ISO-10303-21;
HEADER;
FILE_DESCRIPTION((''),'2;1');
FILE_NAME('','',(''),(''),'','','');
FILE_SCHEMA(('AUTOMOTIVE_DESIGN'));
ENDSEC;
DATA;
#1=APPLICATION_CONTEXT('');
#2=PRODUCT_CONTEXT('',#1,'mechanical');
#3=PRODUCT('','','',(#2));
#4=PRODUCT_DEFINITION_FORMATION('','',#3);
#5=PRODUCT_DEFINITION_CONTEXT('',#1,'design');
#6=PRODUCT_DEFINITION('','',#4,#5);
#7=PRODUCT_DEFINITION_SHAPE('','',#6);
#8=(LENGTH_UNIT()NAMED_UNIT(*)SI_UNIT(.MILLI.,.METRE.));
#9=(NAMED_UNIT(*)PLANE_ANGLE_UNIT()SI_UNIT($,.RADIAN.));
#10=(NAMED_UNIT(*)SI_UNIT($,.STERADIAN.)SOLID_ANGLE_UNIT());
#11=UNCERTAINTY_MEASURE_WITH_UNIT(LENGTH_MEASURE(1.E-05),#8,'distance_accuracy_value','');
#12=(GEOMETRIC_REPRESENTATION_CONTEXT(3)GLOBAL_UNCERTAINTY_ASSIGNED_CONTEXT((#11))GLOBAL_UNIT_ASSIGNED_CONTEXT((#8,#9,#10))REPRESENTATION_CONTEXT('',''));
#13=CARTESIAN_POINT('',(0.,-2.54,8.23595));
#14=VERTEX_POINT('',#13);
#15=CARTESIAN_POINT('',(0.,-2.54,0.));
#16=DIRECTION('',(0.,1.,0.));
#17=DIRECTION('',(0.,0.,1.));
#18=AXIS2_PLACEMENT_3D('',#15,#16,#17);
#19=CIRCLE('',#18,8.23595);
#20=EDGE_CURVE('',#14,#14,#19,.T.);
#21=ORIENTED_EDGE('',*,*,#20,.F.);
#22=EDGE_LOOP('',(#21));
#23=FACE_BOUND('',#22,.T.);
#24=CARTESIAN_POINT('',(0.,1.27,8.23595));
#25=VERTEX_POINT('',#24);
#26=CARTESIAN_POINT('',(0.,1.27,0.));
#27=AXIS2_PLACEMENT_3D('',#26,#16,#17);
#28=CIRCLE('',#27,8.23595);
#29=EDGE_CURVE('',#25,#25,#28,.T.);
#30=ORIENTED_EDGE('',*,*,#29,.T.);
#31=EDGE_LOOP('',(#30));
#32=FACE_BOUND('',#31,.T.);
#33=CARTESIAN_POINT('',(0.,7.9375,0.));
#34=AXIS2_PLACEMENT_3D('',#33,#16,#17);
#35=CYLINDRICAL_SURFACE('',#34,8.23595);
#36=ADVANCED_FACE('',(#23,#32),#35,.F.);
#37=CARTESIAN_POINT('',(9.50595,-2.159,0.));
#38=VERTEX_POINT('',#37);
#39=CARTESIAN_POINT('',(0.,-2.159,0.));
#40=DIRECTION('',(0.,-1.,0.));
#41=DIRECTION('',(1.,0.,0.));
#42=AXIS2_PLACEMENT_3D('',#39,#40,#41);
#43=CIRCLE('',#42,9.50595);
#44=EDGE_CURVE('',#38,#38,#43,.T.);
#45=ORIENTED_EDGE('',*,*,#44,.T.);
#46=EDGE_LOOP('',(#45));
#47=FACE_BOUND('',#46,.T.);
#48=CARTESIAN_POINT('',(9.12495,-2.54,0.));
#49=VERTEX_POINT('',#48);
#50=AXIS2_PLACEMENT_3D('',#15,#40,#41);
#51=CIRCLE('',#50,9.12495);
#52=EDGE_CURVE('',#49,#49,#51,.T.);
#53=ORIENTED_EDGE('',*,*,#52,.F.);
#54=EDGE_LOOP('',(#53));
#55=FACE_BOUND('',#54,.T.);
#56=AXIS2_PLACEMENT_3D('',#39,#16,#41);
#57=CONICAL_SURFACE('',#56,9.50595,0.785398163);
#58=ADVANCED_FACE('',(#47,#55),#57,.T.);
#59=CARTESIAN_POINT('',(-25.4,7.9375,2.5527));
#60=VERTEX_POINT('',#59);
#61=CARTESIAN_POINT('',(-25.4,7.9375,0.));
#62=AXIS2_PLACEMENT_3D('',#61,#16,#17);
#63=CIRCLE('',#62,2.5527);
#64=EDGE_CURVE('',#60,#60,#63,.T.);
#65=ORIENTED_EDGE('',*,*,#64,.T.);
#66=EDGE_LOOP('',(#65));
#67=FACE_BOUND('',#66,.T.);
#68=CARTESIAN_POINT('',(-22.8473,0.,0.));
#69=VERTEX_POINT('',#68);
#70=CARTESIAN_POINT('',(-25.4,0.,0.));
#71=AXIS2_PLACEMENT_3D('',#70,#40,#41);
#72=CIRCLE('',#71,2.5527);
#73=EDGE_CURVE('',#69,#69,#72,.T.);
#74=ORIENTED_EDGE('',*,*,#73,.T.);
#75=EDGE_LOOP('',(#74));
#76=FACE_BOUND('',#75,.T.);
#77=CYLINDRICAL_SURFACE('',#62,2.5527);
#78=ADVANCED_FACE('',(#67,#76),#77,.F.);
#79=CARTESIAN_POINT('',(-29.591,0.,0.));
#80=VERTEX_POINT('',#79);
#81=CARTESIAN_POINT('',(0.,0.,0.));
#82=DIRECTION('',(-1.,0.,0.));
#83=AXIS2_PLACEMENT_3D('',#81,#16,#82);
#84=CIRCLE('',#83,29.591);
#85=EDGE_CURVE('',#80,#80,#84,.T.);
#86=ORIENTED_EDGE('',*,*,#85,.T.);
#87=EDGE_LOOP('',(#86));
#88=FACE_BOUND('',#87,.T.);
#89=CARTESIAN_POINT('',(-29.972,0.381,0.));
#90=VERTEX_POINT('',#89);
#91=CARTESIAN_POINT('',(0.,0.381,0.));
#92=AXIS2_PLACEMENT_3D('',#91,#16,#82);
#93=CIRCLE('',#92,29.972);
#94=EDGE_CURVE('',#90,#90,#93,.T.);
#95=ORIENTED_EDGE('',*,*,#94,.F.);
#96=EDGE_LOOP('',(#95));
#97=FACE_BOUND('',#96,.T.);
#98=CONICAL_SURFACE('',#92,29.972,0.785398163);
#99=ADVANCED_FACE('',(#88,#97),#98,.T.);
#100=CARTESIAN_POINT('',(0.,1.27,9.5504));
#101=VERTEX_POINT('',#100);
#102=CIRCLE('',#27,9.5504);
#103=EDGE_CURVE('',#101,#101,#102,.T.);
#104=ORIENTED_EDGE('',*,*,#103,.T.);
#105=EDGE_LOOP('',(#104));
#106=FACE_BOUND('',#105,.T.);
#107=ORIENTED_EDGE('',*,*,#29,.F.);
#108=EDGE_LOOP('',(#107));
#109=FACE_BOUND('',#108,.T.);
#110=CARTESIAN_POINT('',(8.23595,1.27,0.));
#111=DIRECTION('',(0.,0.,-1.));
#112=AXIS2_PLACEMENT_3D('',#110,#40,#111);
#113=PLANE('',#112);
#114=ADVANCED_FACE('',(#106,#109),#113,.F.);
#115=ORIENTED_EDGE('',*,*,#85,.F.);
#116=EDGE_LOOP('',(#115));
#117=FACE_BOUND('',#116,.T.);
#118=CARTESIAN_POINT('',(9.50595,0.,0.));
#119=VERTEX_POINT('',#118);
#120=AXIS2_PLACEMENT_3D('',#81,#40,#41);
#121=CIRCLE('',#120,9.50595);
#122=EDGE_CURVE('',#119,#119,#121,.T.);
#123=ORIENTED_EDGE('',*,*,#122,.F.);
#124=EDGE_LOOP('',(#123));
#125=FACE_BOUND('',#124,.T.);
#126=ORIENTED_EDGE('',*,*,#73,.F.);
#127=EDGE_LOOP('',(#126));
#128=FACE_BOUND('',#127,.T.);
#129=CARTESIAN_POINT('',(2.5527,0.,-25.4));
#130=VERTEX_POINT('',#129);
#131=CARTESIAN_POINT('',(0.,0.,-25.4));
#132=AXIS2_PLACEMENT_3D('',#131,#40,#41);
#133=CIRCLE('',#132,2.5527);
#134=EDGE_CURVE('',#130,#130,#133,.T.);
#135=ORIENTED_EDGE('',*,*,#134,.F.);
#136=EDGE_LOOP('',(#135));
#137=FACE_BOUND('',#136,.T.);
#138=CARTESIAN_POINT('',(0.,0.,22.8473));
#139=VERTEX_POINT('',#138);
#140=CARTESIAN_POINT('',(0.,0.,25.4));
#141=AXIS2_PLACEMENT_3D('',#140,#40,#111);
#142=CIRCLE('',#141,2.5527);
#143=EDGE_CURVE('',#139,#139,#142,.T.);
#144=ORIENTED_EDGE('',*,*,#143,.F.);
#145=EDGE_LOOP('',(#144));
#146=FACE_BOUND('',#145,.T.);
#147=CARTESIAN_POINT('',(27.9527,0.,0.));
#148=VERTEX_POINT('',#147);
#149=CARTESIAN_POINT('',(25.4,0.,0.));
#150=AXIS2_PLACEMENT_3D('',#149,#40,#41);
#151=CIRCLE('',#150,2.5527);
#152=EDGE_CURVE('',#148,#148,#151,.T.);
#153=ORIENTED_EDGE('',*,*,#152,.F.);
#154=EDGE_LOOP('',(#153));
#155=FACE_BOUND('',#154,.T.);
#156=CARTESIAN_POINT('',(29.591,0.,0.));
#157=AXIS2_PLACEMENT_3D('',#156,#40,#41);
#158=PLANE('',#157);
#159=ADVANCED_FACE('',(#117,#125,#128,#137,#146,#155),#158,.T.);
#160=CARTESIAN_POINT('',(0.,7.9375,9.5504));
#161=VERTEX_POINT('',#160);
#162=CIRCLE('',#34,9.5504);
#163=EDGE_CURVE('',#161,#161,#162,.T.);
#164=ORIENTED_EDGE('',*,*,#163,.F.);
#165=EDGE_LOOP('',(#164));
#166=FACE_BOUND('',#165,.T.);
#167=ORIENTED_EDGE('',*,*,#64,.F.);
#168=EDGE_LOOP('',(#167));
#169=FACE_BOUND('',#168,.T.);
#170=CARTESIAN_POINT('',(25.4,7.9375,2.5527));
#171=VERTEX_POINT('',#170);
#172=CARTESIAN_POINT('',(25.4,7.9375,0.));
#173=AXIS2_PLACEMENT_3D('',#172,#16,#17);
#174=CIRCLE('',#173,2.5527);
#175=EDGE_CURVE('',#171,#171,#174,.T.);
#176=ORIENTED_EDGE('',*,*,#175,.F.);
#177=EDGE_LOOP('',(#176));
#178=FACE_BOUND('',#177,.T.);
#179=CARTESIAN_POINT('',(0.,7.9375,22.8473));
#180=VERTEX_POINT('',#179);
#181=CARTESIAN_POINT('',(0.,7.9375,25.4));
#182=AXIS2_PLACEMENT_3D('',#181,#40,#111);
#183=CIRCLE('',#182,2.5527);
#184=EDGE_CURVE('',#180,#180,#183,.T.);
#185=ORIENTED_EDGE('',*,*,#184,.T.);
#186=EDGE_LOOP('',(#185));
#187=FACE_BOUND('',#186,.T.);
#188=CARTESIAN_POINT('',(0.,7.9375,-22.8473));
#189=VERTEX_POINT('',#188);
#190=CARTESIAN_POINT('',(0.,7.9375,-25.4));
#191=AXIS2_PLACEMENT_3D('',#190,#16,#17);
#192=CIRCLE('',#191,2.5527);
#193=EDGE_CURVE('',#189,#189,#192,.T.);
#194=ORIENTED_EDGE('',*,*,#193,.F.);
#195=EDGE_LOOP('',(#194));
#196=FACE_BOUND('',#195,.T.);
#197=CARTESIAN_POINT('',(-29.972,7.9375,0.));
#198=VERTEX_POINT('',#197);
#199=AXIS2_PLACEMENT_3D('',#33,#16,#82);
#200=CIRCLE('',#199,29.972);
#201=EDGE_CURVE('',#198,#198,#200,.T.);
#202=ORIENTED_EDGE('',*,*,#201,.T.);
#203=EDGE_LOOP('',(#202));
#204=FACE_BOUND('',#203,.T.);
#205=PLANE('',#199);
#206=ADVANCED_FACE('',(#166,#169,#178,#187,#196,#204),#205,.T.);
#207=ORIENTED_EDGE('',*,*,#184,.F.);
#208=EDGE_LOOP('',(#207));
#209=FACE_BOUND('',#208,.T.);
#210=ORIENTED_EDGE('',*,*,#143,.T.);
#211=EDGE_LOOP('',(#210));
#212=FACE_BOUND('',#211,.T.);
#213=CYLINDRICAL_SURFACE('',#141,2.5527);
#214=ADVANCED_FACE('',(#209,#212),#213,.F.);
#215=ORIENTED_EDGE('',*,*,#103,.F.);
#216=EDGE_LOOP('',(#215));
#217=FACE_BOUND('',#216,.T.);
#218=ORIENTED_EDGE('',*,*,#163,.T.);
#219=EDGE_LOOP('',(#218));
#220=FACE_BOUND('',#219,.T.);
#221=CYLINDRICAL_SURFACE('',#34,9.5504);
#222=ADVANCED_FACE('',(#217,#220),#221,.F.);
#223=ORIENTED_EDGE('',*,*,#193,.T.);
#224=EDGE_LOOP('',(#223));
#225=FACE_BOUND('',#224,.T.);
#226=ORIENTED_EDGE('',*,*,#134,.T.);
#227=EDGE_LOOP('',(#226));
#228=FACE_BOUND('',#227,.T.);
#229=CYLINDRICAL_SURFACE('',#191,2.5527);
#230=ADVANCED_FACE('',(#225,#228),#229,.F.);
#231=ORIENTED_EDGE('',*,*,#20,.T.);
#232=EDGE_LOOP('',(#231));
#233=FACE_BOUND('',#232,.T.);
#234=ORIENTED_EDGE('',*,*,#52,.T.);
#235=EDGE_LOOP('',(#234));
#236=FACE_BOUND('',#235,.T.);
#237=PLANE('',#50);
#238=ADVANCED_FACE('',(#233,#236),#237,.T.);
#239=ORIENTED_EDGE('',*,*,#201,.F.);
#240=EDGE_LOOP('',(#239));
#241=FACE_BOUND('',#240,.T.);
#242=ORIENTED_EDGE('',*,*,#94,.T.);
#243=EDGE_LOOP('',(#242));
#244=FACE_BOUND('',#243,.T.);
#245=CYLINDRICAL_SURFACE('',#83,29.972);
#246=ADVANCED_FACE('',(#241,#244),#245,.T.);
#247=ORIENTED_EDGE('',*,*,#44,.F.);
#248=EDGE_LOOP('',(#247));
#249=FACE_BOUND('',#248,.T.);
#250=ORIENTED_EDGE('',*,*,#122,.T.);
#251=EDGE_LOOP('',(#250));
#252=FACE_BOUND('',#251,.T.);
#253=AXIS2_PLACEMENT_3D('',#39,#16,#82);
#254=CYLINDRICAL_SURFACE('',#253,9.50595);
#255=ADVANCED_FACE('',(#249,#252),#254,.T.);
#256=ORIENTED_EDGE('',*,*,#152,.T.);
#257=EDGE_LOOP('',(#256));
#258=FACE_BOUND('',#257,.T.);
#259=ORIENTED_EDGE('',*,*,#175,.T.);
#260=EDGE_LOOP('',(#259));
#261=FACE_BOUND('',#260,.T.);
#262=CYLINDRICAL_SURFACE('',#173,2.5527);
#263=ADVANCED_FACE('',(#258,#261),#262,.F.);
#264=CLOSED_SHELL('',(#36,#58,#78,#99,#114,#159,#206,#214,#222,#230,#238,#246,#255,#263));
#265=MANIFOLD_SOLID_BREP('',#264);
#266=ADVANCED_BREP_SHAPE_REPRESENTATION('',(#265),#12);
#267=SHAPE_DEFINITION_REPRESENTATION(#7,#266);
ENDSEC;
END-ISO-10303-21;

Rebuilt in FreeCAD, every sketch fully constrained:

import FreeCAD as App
import Part
import Sketcher

V = App.Vector
Q = App.Units.Quantity

doc = App.newDocument("Part")
body = doc.addObject("PartDesign::Body", "Body")

# Sketch on XY plane
sketch1 = body.newObject("Sketcher::SketchObject", "Sketch")
sketch1.AttachmentSupport = (doc.getObject("XY_Plane"), [""])
sketch1.MapMode = "FlatFace"
sketch1.addGeometry(Part.LineSegment(V(29.6, 0, 0), V(0, 0, 0)), False)
sketch1.addGeometry(Part.LineSegment(V(0, 0, 0), V(0, 7.9, 0)), False)
sketch1.addGeometry(Part.LineSegment(V(0, 7.9, 0), V(30, 7.9, 0)), False)
sketch1.addGeometry(Part.LineSegment(V(30, 7.9, 0), V(30, 0.4, 0)), False)
sketch1.addGeometry(Part.LineSegment(V(30, 0.4, 0), V(29.6, 0, 0)), False)
sketch1.addConstraint(Sketcher.Constraint("Coincident", 0, 2, 1, 1))
sketch1.addConstraint(Sketcher.Constraint("Coincident", 1, 2, 2, 1))
sketch1.addConstraint(Sketcher.Constraint("Coincident", 2, 2, 3, 1))
sketch1.addConstraint(Sketcher.Constraint("Coincident", 3, 2, 4, 1))
sketch1.addConstraint(Sketcher.Constraint("Coincident", 4, 2, 0, 1))
sketch1.addConstraint(Sketcher.Constraint("Horizontal", 0))
sketch1.addConstraint(Sketcher.Constraint("Vertical", 1))
sketch1.addConstraint(Sketcher.Constraint("Horizontal", 2))
sketch1.addConstraint(Sketcher.Constraint("Vertical", 3))
sketch1.addConstraint(Sketcher.Constraint("Coincident", 0, 2, -1, 1))
sketch1.addConstraint(Sketcher.Constraint("Angle", 4, Q("-135 deg")))
sketch1.addConstraint(Sketcher.Constraint("DistanceX", 2, 1, 2, 2, Q("1.18 in")))
sketch1.addConstraint(Sketcher.Constraint("DistanceX", 0, 2, 0, 1, Q("1.165 in")))
sketch1.addConstraint(Sketcher.Constraint("DistanceY", 1, 1, 1, 2, Q("0.3125 in")))
revolution = body.newObject("PartDesign::Revolution", "Revolution")
revolution.Profile = sketch1
revolution.ReferenceAxis = (sketch1, ["V_Axis"])
revolution.Angle = 360

# Sketch on XZ plane
sketch2 = body.newObject("Sketcher::SketchObject", "Sketch001")
sketch2.AttachmentSupport = (doc.getObject("XZ_Plane"), [""])
sketch2.MapMode = "FlatFace"
sketch2.addGeometry(Part.Circle(V(0, 0, 0), V(0, 0, 1), 10), False)
sketch2.addConstraint(Sketcher.Constraint("Coincident", 0, 3, -1, 1))
sketch2.addConstraint(Sketcher.Constraint("Diameter", 0, Q("0.7485 in")))
pad1 = body.newObject("PartDesign::Pad", "Pad")
pad1.Profile = sketch2
pad1.Length = Q("0.085 in")

# Sketch on XZ plane
sketch3 = body.newObject("Sketcher::SketchObject", "Sketch002")
sketch3.AttachmentSupport = (doc.getObject("XZ_Plane"), [""])
sketch3.MapMode = "FlatFace"
sketch3.AttachmentOffset = App.Placement(V(0, 0, 0.085 * 25.4), App.Rotation())
sketch3.addGeometry(Part.Circle(V(0, 0, 0), V(0, 0, 1), 10), False)
sketch3.addConstraint(Sketcher.Constraint("Coincident", 0, 3, -1, 1))
sketch3.addConstraint(Sketcher.Constraint("Diameter", 0, Q("0.7485 in")))
pad2 = body.newObject("PartDesign::Pad", "Pad001")
pad2.Profile = sketch3
pad2.Length = Q("0.015 in")
pad2.TaperAngle = -45

# Sketch on XZ plane
sketch4 = body.newObject("Sketcher::SketchObject", "Sketch003")
sketch4.AttachmentSupport = (doc.getObject("XZ_Plane"), [""])
sketch4.MapMode = "FlatFace"
sketch4.addGeometry(Part.Circle(V(0, 25.4, 0), V(0, 0, 1), 2.6), False)
sketch4.addConstraint(Sketcher.Constraint("PointOnObject", 0, 3, -2))
sketch4.addConstraint(Sketcher.Constraint("Diameter", 0, Q("0.201 in")))
sketch4.addConstraint(Sketcher.Constraint("DistanceY", -1, 1, 0, 3, Q("1 in")))
doc.recompute()
hole = body.newObject("PartDesign::Hole", "Hole")
hole.Profile = sketch4
hole.ThreadType = "None"
hole.Diameter = Q("0.201 in")
hole.DepthType = "Dimension"
hole.Depth = Q("0.3125 in")
hole.DrillPoint = "Flat"

# Sketch on XZ plane
sketch5 = body.newObject("Sketcher::SketchObject", "Sketch004")
sketch5.AttachmentSupport = (doc.getObject("XZ_Plane"), [""])
sketch5.MapMode = "FlatFace"
sketch5.AttachmentOffset = App.Placement(V(0, 0, -0.3125 * 25.4), App.Rotation())
sketch5.addGeometry(Part.Circle(V(0, -25.4, 0), V(0, 0, 1), 2.6), False)
sketch5.addGeometry(Part.Circle(V(25.4, 0, 0), V(0, 0, 1), 2.6), False)
sketch5.addGeometry(Part.Circle(V(-25.4, 0, 0), V(0, 0, 1), 2.6), False)
sketch5.addConstraint(Sketcher.Constraint("Equal", 0, 1))
sketch5.addConstraint(Sketcher.Constraint("Equal", 1, 2))
sketch5.addConstraint(Sketcher.Constraint("Symmetric", 1, 3, 2, 3, -1, 1))
sketch5.addConstraint(Sketcher.Constraint("PointOnObject", 0, 3, -2))
sketch5.addConstraint(Sketcher.Constraint("PointOnObject", 1, 3, -1))
sketch5.addConstraint(Sketcher.Constraint("Diameter", 0, Q("0.201 in")))
sketch5.addConstraint(Sketcher.Constraint("DistanceY", 0, 3, -1, 1, Q("1 in")))
sketch5.addConstraint(Sketcher.Constraint("DistanceX", -1, 1, 1, 3, Q("1 in")))
doc.recompute()
hole2 = body.newObject("PartDesign::Hole", "Hole001")
hole2.Profile = sketch5
hole2.ThreadType = "None"
hole2.Diameter = Q("0.201 in")
hole2.DepthType = "Dimension"
hole2.Depth = Q("0.4125 in")
hole2.DrillPoint = "Flat"
hole2.Reversed = True

# Sketch on XZ plane
sketch6 = body.newObject("Sketcher::SketchObject", "Sketch005")
sketch6.AttachmentSupport = (doc.getObject("XZ_Plane"), [""])
sketch6.MapMode = "FlatFace"
sketch6.AttachmentOffset = App.Placement(V(0, 0, -0.3125 * 25.4), App.Rotation())
sketch6.addGeometry(Part.Circle(V(0, 0, 0), V(0, 0, 1), 8), False)
sketch6.addConstraint(Sketcher.Constraint("Coincident", 0, 3, -1, 1))
sketch6.addConstraint(Sketcher.Constraint("Diameter", 0, Q("0.6485 in")))
doc.recompute()
hole3 = body.newObject("PartDesign::Hole", "Hole002")
hole3.Profile = sketch6
hole3.ThreadType = "None"
hole3.Diameter = Q("0.6485 in")
hole3.DepthType = "Dimension"
hole3.Depth = Q("0.4125 in")
hole3.DrillPoint = "Flat"
hole3.HoleCutType = "Counterbore"
hole3.HoleCutDiameter = Q("0.752 in")
hole3.HoleCutDepth = Q("0.2625 in")
hole3.Reversed = True

doc.recompute()
